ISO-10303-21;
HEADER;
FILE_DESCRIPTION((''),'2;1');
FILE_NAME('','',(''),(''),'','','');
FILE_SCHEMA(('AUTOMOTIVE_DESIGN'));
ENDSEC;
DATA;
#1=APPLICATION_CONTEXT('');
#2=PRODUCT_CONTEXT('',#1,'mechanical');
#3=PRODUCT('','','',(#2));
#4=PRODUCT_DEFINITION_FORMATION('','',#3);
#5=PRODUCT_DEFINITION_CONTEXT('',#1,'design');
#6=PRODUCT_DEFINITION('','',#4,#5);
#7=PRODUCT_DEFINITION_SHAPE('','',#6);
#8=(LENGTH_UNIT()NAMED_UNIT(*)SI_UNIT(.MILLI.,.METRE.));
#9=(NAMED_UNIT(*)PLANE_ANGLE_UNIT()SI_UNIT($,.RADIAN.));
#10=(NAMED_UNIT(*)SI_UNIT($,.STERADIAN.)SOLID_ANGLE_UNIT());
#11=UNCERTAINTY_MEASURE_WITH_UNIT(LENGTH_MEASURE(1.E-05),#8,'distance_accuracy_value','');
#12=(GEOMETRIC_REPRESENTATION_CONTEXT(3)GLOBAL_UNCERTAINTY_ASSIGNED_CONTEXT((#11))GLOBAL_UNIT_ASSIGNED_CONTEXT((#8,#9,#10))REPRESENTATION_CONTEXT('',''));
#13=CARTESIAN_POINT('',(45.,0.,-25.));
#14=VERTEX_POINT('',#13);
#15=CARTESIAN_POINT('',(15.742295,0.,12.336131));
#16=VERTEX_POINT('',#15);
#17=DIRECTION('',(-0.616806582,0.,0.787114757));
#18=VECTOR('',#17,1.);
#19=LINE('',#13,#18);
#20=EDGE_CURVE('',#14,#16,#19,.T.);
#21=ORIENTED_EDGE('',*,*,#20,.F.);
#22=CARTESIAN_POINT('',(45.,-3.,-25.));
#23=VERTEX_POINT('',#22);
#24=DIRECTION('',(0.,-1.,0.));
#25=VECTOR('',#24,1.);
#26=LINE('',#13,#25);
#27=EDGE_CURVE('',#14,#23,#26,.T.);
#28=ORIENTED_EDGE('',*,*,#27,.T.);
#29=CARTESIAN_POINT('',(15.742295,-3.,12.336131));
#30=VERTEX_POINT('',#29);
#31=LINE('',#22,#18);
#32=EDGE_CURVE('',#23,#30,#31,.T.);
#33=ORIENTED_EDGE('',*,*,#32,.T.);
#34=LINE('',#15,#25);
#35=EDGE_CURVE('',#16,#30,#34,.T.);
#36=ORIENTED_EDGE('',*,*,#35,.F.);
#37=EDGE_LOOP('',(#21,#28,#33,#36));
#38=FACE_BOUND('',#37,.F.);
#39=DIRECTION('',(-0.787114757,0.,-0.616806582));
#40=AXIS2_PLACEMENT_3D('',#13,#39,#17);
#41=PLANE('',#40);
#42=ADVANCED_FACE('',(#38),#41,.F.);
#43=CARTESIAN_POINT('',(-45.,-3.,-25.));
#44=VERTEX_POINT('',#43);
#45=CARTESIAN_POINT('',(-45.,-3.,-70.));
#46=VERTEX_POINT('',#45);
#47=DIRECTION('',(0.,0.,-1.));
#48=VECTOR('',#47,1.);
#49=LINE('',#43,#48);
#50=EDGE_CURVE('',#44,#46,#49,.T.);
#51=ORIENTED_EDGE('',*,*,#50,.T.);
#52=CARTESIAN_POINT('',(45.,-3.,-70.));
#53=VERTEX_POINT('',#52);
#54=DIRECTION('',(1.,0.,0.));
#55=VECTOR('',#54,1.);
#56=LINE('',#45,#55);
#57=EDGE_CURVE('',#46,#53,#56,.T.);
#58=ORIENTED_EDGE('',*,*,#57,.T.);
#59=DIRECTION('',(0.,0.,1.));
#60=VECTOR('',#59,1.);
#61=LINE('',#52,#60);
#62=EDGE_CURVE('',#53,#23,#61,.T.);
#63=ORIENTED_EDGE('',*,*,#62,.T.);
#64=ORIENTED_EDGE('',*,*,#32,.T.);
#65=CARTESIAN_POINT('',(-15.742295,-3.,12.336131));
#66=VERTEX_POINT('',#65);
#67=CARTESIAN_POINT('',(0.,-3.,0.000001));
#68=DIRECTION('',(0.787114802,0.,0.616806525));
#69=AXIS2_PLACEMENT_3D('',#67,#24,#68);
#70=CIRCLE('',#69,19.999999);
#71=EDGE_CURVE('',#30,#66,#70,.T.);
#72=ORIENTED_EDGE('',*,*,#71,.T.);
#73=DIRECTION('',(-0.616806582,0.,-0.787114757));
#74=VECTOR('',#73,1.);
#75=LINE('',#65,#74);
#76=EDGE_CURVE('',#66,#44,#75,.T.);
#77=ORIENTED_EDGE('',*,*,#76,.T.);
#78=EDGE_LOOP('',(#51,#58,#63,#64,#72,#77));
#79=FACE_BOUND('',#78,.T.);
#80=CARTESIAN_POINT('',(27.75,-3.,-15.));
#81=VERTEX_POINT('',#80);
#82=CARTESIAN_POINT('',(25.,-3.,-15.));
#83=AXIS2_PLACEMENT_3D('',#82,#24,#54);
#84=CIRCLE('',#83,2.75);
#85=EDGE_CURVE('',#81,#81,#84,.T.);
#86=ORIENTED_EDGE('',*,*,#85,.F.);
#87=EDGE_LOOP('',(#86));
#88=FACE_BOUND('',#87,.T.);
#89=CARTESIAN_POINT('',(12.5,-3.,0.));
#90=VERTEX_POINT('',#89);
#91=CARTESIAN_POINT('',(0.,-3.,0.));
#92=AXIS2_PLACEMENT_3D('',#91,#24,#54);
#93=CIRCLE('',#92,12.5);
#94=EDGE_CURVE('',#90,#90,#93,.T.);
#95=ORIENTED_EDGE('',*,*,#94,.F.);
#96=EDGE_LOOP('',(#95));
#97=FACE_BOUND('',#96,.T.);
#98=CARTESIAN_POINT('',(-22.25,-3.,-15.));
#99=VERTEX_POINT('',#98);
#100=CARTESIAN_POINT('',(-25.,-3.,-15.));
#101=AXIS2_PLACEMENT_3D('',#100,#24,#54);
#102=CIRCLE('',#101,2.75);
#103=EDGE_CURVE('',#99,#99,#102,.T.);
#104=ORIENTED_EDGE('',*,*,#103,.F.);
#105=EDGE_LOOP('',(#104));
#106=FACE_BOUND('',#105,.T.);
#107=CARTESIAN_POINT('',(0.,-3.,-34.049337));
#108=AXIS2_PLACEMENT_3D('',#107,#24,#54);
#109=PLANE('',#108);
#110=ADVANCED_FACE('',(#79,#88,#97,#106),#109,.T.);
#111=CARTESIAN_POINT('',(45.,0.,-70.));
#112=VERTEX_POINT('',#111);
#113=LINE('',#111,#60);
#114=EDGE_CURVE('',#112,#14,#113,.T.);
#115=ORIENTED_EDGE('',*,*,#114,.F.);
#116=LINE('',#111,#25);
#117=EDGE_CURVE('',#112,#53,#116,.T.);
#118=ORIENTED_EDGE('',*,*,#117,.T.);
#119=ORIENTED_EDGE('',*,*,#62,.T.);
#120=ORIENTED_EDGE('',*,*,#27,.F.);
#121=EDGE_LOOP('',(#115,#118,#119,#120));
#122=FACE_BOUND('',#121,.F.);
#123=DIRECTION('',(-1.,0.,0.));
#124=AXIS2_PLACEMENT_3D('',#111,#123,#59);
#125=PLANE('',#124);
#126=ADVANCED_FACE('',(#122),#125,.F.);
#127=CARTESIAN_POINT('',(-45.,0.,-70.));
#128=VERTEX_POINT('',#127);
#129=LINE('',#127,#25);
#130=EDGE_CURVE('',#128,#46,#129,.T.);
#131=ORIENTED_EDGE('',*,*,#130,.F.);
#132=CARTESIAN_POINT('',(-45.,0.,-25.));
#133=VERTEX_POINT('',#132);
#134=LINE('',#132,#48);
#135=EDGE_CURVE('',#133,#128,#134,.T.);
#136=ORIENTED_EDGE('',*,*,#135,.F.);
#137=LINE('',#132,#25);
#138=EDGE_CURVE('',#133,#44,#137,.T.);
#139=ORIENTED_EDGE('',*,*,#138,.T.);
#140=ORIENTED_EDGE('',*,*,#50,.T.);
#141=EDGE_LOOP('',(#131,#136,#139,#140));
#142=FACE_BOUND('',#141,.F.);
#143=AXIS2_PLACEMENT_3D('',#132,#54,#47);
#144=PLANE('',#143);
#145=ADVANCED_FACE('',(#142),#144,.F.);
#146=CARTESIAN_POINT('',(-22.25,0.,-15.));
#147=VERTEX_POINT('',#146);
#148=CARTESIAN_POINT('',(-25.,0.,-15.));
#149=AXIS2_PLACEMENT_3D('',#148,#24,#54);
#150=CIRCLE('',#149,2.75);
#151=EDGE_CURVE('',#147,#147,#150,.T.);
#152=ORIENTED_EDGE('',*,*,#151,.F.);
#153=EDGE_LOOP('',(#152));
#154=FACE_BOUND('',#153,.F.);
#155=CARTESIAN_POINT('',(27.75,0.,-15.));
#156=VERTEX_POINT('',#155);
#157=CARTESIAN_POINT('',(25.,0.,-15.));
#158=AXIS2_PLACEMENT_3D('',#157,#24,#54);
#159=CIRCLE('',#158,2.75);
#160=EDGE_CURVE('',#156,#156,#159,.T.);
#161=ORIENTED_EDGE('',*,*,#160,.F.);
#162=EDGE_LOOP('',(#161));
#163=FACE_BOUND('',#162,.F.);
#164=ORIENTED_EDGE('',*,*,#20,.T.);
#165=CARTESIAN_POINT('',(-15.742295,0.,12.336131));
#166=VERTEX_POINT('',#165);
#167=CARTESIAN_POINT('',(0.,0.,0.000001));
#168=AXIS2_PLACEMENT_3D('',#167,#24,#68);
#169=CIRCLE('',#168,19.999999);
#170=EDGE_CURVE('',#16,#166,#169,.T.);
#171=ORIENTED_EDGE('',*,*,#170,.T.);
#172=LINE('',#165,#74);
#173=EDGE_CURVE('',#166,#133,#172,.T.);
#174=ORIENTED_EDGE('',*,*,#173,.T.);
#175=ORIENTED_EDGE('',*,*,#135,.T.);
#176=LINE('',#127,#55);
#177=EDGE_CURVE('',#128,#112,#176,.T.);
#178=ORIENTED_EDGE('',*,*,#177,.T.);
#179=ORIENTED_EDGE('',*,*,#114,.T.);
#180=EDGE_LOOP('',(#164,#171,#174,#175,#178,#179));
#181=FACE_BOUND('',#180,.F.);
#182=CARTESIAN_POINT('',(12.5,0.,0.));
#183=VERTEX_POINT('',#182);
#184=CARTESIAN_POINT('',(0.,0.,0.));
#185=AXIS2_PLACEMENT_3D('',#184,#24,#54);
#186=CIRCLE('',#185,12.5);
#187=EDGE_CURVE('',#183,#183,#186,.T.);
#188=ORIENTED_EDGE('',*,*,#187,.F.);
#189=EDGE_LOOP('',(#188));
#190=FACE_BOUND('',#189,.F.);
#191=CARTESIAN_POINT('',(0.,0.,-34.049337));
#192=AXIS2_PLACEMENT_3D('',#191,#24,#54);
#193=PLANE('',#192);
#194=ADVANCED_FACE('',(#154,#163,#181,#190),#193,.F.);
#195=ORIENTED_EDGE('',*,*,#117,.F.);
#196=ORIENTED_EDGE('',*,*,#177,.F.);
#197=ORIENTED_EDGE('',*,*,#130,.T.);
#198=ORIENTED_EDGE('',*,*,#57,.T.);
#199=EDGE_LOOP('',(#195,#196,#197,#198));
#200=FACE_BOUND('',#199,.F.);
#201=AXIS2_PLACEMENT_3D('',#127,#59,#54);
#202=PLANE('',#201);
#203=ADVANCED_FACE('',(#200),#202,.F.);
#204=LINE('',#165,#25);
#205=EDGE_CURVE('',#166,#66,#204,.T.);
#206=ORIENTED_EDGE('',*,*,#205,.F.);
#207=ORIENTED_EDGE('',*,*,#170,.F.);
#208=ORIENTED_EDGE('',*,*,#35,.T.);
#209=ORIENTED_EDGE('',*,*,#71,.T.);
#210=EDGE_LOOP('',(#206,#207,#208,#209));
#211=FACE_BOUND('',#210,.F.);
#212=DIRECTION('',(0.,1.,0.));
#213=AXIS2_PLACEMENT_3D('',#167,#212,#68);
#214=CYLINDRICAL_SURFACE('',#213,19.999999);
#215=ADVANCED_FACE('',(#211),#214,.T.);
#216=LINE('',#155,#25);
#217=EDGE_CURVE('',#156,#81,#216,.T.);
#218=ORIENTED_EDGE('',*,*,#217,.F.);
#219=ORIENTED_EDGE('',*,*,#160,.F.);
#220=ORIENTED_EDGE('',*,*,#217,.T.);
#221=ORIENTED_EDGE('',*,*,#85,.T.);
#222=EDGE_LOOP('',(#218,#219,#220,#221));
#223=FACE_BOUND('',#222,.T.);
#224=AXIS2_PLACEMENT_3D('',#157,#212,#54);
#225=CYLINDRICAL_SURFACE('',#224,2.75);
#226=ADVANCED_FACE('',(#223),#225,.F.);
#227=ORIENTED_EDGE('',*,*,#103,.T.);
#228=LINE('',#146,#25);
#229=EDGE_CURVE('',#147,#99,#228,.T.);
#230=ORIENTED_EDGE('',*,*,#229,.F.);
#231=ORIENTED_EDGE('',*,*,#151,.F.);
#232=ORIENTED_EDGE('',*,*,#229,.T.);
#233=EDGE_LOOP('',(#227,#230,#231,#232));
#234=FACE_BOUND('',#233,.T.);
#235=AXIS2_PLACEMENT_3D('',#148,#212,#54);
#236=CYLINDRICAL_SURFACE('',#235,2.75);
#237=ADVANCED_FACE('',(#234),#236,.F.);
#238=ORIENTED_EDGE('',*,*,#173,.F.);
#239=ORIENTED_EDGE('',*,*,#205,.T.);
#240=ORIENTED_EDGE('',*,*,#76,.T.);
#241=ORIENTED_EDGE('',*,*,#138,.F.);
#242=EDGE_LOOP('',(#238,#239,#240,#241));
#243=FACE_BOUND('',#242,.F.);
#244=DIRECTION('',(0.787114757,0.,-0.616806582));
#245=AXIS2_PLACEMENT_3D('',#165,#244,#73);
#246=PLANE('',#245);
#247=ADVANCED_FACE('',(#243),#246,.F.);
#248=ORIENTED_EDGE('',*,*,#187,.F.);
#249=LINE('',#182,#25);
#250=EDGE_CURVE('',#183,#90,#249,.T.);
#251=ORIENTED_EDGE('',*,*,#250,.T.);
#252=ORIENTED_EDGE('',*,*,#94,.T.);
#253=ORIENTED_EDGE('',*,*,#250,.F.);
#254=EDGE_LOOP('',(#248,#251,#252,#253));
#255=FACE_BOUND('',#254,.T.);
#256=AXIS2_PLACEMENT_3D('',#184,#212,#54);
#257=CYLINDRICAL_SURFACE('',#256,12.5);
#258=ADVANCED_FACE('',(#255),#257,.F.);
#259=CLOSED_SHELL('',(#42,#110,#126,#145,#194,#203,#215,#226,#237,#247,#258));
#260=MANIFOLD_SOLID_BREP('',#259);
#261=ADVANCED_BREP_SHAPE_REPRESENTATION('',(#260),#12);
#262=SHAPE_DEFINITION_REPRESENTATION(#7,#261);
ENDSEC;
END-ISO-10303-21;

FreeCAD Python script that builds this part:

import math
import FreeCAD as App
import Part
import Sketcher

V = App.Vector
Q = App.Units.Quantity

doc = App.newDocument("Part")
body = doc.addObject("PartDesign::Body", "Body")

sketch1 = body.newObject("Sketcher::SketchObject", "Sketch")
sketch1.AttachmentSupport = (doc.getObject("XZ_Plane"), [""])
sketch1.MapMode = "FlatFace"
sketch1.addGeometry([
    Part.LineSegment(V(45, -25, 0), V(15.742295, 12.336131, 0)),
    Part.ArcOfCircle(Part.Circle(V(0, 0.000001, 0), V(0, 0, 1), 19.999999), math.radians(38.083303), math.radians(141.916697)),
    Part.LineSegment(V(-15.742295, 12.336131, 0), V(-45, -25, 0)),
    Part.LineSegment(V(-45, -25, 0), V(-45, -70, 0)),
    Part.LineSegment(V(-45, -70, 0), V(45, -70, 0)),
    Part.LineSegment(V(45, -70, 0), V(45, -25, 0)),
    Part.Circle(V(-25, -15, 0), V(0, 0, 1), 2.75),
    Part.Circle(V(25, -15, 0), V(0, 0, 1), 2.75),
    Part.Circle(V(0, 0, 0), V(0, 0, 1), 12.5),
], False)
sketch1.addConstraint([
    Sketcher.Constraint("Tangent", 0, 2, 1, 1),
    Sketcher.Constraint("Tangent", 1, 2, 2, 1),
    Sketcher.Constraint("Coincident", 2, 2, 3, 1),
    Sketcher.Constraint("Coincident", 3, 2, 4, 1),
    Sketcher.Constraint("Coincident", 4, 2, 5, 1),
    Sketcher.Constraint("Coincident", 5, 2, 0, 1),
    Sketcher.Constraint("Vertical", 3),
    Sketcher.Constraint("Horizontal", 4),
    Sketcher.Constraint("Vertical", 5),
    Sketcher.Constraint("Coincident", 1, 3, -1, 1),
    Sketcher.Constraint("Coincident", 8, 3, -1, 1),
    Sketcher.Constraint("Equal", 6, 7),
    Sketcher.Constraint("Symmetric", 6, 3, 7, 3, -2),
    Sketcher.Constraint("Symmetric", 2, 2, 5, 2, -2),
    Sketcher.Constraint("Diameter", 8, Q("25 mm")),
    Sketcher.Constraint("Radius", 1, Q("19.999999 mm")),
    Sketcher.Constraint("Diameter", 6, Q("5.5 mm")),
    Sketcher.Constraint("DistanceX", 4, 1, 4, 2, Q("90 mm")),
    Sketcher.Constraint("DistanceY", 3, 2, 3, 1, Q("45 mm")),
    Sketcher.Constraint("DistanceX", 6, 3, -1, 1, Q("25 mm")),
    Sketcher.Constraint("DistanceY", 6, 3, -1, 1, Q("15 mm")),
    Sketcher.Constraint("DistanceY", 2, 2, -1, 1, Q("25 mm")),
])
pad1 = body.newObject("PartDesign::Pad", "Pad")
pad1.Profile = sketch1
pad1.Length = 3

doc.recompute()
